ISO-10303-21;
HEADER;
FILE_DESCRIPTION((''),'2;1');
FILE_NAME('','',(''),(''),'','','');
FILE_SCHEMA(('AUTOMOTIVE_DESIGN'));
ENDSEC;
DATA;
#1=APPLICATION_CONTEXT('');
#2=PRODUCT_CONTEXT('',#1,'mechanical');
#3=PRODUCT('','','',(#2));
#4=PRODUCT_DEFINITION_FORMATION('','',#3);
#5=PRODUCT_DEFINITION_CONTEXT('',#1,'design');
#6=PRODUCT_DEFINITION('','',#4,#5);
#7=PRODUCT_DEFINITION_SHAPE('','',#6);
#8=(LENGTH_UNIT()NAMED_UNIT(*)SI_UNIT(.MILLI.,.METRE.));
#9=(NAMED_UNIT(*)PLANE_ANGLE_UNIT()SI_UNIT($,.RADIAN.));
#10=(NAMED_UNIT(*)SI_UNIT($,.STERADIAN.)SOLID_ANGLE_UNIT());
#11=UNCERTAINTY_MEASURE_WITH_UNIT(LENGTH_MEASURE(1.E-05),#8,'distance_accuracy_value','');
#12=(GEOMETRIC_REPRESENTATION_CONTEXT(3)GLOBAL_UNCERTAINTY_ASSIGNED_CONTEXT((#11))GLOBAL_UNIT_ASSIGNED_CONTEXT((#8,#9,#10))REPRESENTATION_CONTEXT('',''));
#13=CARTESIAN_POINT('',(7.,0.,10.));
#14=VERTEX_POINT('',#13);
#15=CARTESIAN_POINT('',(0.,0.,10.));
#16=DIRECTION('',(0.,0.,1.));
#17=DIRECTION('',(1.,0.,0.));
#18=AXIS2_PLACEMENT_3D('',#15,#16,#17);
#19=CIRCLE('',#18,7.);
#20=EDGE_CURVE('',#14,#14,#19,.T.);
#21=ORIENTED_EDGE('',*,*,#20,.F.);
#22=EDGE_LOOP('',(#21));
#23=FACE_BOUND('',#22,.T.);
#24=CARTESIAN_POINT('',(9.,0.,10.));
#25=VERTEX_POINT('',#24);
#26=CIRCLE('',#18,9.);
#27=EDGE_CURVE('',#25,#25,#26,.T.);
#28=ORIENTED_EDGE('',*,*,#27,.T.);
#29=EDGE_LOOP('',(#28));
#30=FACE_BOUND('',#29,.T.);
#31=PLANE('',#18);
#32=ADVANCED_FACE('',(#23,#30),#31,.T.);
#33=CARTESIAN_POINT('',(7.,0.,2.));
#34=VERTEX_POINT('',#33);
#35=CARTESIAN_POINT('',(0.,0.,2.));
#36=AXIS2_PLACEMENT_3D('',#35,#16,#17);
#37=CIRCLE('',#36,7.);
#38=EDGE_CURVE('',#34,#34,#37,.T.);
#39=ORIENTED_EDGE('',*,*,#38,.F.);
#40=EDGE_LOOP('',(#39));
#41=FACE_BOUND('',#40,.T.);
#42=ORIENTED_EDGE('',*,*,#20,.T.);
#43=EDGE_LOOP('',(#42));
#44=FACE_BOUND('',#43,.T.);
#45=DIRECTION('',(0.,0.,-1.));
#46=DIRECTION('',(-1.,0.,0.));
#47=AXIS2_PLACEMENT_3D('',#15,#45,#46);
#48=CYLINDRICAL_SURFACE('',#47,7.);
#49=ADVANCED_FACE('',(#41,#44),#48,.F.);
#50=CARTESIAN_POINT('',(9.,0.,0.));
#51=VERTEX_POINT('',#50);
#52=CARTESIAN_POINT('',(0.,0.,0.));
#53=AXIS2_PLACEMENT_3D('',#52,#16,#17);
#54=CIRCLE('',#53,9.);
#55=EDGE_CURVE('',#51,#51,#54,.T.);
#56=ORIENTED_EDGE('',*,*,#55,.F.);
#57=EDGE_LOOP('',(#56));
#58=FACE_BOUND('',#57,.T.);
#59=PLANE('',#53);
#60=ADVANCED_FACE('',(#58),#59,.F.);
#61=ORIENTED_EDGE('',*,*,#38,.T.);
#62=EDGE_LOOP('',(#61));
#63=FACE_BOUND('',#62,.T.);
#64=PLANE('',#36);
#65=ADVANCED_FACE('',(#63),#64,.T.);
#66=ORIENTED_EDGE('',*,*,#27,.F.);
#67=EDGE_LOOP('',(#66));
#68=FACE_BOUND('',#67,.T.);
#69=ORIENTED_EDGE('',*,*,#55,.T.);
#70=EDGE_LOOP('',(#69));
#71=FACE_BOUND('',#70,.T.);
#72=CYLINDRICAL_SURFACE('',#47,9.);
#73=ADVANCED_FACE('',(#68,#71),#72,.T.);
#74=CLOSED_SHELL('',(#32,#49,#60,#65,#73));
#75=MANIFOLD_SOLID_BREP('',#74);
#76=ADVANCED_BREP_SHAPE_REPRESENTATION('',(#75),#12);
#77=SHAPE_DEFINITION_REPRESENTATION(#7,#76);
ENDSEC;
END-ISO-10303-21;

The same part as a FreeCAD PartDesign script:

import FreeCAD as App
import Part
import Sketcher


def faces_at(feature, points):
    """Names of the faces that lie closest to the given points."""
    faces = feature.Shape.Faces
    near = lambda p: min(range(len(faces)), key=lambda i: faces[i].distToShape(Part.Vertex(*p))[0])
    return sorted({f"Face{near(p) + 1}" for p in points})

doc = App.newDocument("Part")
body = doc.addObject("PartDesign::Body", "Body")

# Sketch on XY plane
sketch1 = body.newObject("Sketcher::SketchObject", "Sketch")
sketch1.AttachmentSupport = (doc.getObject("XY_Plane"), [""])
sketch1.MapMode = "FlatFace"
sketch1.addGeometry(Part.Circle(App.Vector(0, 0, 0), App.Vector(0, 0, 1), 9), False)
sketch1.addConstraint([
    Sketcher.Constraint("Coincident", 0, 3, -1, 1),
    Sketcher.Constraint("Diameter", 0, 18.0),
])
pad1 = body.newObject("PartDesign::Pad", "Pad")
pad1.Profile = sketch1
pad1.Length = 10
doc.recompute()

thickness = body.newObject("PartDesign::Thickness", "Thickness")
thickness.Base = (pad1, faces_at(pad1, [(0, 0, 10)]))
thickness.Value = 2
thickness.Reversed = True
thickness.Join = "Intersection"

doc.recompute()
